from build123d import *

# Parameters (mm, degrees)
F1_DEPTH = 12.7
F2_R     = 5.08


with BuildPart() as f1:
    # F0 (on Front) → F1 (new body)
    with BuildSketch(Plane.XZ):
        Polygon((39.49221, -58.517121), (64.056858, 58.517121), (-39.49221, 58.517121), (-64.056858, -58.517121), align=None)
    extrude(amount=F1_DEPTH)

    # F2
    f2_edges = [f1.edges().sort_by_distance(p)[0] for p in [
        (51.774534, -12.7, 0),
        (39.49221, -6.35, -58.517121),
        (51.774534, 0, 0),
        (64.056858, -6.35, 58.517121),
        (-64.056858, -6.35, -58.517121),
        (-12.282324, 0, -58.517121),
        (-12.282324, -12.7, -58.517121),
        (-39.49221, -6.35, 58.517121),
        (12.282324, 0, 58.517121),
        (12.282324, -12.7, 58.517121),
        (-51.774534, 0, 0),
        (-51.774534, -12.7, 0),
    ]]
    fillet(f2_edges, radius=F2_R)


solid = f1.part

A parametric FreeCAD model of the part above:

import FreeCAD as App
import Part
import Sketcher

V = App.Vector
Q = App.Units.Quantity

doc = App.newDocument("Part")
body = doc.addObject("PartDesign::Body", "Body")

# Sketch on XZ plane
sketch1 = body.newObject("Sketcher::SketchObject", "Sketch")
sketch1.AttachmentSupport = (doc.getObject("XZ_Plane"), [""])
sketch1.MapMode = "FlatFace"
sketch1.addGeometry(Part.LineSegment(V(39.49221, -58.517121, 0), V(64.056858, 58.517121, 0)), False)
sketch1.addGeometry(Part.LineSegment(V(64.056858, 58.517121, 0), V(-39.49221, 58.517121, 0)), False)
sketch1.addGeometry(Part.LineSegment(V(-39.49221, 58.517121, 0), V(-64.056858, -58.517121, 0)), False)
sketch1.addGeometry(Part.LineSegment(V(-64.056858, -58.517121, 0), V(39.49221, -58.517121, 0)), False)
sketch1.addConstraint(Sketcher.Constraint("Coincident", 0, 2, 1, 1))
sketch1.addConstraint(Sketcher.Constraint("Coincident", 1, 2, 2, 1))
sketch1.addConstraint(Sketcher.Constraint("Coincident", 2, 2, 3, 1))
sketch1.addConstraint(Sketcher.Constraint("Coincident", 3, 2, 0, 1))
sketch1.addConstraint(Sketcher.Constraint("Horizontal", 1))
sketch1.addConstraint(Sketcher.Constraint("Horizontal", 3))
sketch1.addConstraint(Sketcher.Constraint("Symmetric", 0, 2, 2, 2, -1, 1))
sketch1.addConstraint(Sketcher.Constraint("Parallel", 0, 2))
sketch1.addConstraint(Sketcher.Constraint("DistanceX", 1, 2, 1, 1, 103.549068))
sketch1.addConstraint(Sketcher.Constraint("Distance", 0, 119.584429))
sketch1.addConstraint(Sketcher.Constraint("DistanceX", -1, 1, 0, 2, 64.056858))
pad1 = body.newObject("PartDesign::Pad", "Pad")
pad1.Profile = sketch1
pad1.Length = Q("0.5 in")
doc.recompute()

fillet = body.newObject("PartDesign::Fillet", "Fillet")
fillet.Base = (pad1, ["Edge1"])
fillet.UseAllEdges = True
fillet.Radius = Q("0.2 in")

doc.recompute()
